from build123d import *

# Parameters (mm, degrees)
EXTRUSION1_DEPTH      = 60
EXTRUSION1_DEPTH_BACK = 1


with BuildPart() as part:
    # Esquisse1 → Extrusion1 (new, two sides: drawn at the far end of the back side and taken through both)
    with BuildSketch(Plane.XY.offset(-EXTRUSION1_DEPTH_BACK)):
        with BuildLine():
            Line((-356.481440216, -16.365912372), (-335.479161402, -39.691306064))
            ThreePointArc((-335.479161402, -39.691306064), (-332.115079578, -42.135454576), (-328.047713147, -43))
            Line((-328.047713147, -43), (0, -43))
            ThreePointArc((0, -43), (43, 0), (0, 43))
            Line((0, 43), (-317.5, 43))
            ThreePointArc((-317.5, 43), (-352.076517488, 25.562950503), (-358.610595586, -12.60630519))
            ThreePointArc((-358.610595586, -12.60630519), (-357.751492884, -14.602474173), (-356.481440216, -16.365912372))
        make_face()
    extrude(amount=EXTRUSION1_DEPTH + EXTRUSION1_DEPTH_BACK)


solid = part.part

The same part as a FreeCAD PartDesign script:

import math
import FreeCAD as App
import Part
import Sketcher
from FreeCAD import Vector
Q = App.Units.Quantity

doc = App.newDocument("Part")
params = doc.addObject("Spreadsheet::Sheet", "Params")
for row, (alias, value) in enumerate([
    ("sketch1_radius", "10 mm"),
    ("sketch1_radius2", "43 mm"),
    ("sketch1_width", "317.5 mm"),
    ("pad1_length", "60 mm"),
    ("pad1_length2", "1 mm"),
], start=1):
    params.set(f"A{row}", alias)
    params.set(f"B{row}", "=" + value)
    params.setAlias(f"B{row}", alias)

body = doc.addObject("PartDesign::Body", "Body")

# Sketch on XY plane
sketch1 = body.newObject("Sketcher::SketchObject", "Sketch")
sketch1.AttachmentSupport = (doc.getObject("XY_Plane"), [""])
sketch1.MapMode = "FlatFace"
sketch1.addGeometry(Part.LineSegment(Vector(-356.5, -16.4, 0), Vector(-335.5, -39.7, 0)), False)
sketch1.addGeometry(Part.ArcOfCircle(Part.Circle(Vector(-328, -33, 0), Vector(0, 0, 1), 10), math.radians(-138), math.radians(-90)), False)
sketch1.addGeometry(Part.LineSegment(Vector(-328, -43, 0), Vector(0, -43, 0)), False)
sketch1.addGeometry(Part.ArcOfCircle(Part.Circle(Vector(0, 0, 0), Vector(0, 0, 1), 43), math.radians(-90), math.radians(90)), False)
sketch1.addGeometry(Part.LineSegment(Vector(0, 43, 0), Vector(-317.5, 43, 0)), False)
sketch1.addGeometry(Part.ArcOfCircle(Part.Circle(Vector(-317.5, 0, 0), Vector(0, 0, 1), 43), math.radians(90), math.radians(197)), False)
sketch1.addGeometry(Part.ArcOfCircle(Part.Circle(Vector(-349, -9.7, 0), Vector(0, 0, 1), 10), math.radians(-163), math.radians(-138)), False)
sketch1.addConstraint(Sketcher.Constraint("Tangent", 0, 2, 1, 1))
sketch1.addConstraint(Sketcher.Constraint("Tangent", 1, 2, 2, 1))
sketch1.addConstraint(Sketcher.Constraint("Tangent", 2, 2, 3, 1))
sketch1.addConstraint(Sketcher.Constraint("Tangent", 3, 2, 4, 1))
sketch1.addConstraint(Sketcher.Constraint("Tangent", 4, 2, 5, 1))
sketch1.addConstraint(Sketcher.Constraint("Tangent", 5, 2, 6, 1))
sketch1.addConstraint(Sketcher.Constraint("Tangent", 6, 2, 0, 1))
sketch1.addConstraint(Sketcher.Constraint("Horizontal", 2))
sketch1.addConstraint(Sketcher.Constraint("Horizontal", 4))
sketch1.addConstraint(Sketcher.Constraint("Coincident", 3, 3, -1, 1))
sketch1.addConstraint(Sketcher.Constraint("Equal", 3, 5))
sketch1.addConstraint(Sketcher.Constraint("Equal", 1, 6))
sketch1.addConstraint(Sketcher.Constraint("Radius", 1, 10.0))
sketch1.addConstraint(Sketcher.Constraint("Radius", 3, 43.0))
sketch1.addConstraint(Sketcher.Constraint("Angle", 0, Q("-48 deg")))
sketch1.addConstraint(Sketcher.Constraint("DistanceX", 4, 2, 4, 1, 317.5))
sketch1.addConstraint(Sketcher.Constraint("DistanceY", 0, 2, 5, 2, 27.085001))
sketch1.setExpression("Constraints[12]", "Params.sketch1_radius")
sketch1.setExpression("Constraints[13]", "Params.sketch1_radius2")
sketch1.setExpression("Constraints[15]", "Params.sketch1_width")
pad1 = body.newObject("PartDesign::Pad", "Pad")
pad1.Profile = sketch1
pad1.Type = "TwoLengths"
pad1.setExpression("Length", "Params.pad1_length")
pad1.setExpression("Length2", "Params.pad1_length2")

doc.recompute()
